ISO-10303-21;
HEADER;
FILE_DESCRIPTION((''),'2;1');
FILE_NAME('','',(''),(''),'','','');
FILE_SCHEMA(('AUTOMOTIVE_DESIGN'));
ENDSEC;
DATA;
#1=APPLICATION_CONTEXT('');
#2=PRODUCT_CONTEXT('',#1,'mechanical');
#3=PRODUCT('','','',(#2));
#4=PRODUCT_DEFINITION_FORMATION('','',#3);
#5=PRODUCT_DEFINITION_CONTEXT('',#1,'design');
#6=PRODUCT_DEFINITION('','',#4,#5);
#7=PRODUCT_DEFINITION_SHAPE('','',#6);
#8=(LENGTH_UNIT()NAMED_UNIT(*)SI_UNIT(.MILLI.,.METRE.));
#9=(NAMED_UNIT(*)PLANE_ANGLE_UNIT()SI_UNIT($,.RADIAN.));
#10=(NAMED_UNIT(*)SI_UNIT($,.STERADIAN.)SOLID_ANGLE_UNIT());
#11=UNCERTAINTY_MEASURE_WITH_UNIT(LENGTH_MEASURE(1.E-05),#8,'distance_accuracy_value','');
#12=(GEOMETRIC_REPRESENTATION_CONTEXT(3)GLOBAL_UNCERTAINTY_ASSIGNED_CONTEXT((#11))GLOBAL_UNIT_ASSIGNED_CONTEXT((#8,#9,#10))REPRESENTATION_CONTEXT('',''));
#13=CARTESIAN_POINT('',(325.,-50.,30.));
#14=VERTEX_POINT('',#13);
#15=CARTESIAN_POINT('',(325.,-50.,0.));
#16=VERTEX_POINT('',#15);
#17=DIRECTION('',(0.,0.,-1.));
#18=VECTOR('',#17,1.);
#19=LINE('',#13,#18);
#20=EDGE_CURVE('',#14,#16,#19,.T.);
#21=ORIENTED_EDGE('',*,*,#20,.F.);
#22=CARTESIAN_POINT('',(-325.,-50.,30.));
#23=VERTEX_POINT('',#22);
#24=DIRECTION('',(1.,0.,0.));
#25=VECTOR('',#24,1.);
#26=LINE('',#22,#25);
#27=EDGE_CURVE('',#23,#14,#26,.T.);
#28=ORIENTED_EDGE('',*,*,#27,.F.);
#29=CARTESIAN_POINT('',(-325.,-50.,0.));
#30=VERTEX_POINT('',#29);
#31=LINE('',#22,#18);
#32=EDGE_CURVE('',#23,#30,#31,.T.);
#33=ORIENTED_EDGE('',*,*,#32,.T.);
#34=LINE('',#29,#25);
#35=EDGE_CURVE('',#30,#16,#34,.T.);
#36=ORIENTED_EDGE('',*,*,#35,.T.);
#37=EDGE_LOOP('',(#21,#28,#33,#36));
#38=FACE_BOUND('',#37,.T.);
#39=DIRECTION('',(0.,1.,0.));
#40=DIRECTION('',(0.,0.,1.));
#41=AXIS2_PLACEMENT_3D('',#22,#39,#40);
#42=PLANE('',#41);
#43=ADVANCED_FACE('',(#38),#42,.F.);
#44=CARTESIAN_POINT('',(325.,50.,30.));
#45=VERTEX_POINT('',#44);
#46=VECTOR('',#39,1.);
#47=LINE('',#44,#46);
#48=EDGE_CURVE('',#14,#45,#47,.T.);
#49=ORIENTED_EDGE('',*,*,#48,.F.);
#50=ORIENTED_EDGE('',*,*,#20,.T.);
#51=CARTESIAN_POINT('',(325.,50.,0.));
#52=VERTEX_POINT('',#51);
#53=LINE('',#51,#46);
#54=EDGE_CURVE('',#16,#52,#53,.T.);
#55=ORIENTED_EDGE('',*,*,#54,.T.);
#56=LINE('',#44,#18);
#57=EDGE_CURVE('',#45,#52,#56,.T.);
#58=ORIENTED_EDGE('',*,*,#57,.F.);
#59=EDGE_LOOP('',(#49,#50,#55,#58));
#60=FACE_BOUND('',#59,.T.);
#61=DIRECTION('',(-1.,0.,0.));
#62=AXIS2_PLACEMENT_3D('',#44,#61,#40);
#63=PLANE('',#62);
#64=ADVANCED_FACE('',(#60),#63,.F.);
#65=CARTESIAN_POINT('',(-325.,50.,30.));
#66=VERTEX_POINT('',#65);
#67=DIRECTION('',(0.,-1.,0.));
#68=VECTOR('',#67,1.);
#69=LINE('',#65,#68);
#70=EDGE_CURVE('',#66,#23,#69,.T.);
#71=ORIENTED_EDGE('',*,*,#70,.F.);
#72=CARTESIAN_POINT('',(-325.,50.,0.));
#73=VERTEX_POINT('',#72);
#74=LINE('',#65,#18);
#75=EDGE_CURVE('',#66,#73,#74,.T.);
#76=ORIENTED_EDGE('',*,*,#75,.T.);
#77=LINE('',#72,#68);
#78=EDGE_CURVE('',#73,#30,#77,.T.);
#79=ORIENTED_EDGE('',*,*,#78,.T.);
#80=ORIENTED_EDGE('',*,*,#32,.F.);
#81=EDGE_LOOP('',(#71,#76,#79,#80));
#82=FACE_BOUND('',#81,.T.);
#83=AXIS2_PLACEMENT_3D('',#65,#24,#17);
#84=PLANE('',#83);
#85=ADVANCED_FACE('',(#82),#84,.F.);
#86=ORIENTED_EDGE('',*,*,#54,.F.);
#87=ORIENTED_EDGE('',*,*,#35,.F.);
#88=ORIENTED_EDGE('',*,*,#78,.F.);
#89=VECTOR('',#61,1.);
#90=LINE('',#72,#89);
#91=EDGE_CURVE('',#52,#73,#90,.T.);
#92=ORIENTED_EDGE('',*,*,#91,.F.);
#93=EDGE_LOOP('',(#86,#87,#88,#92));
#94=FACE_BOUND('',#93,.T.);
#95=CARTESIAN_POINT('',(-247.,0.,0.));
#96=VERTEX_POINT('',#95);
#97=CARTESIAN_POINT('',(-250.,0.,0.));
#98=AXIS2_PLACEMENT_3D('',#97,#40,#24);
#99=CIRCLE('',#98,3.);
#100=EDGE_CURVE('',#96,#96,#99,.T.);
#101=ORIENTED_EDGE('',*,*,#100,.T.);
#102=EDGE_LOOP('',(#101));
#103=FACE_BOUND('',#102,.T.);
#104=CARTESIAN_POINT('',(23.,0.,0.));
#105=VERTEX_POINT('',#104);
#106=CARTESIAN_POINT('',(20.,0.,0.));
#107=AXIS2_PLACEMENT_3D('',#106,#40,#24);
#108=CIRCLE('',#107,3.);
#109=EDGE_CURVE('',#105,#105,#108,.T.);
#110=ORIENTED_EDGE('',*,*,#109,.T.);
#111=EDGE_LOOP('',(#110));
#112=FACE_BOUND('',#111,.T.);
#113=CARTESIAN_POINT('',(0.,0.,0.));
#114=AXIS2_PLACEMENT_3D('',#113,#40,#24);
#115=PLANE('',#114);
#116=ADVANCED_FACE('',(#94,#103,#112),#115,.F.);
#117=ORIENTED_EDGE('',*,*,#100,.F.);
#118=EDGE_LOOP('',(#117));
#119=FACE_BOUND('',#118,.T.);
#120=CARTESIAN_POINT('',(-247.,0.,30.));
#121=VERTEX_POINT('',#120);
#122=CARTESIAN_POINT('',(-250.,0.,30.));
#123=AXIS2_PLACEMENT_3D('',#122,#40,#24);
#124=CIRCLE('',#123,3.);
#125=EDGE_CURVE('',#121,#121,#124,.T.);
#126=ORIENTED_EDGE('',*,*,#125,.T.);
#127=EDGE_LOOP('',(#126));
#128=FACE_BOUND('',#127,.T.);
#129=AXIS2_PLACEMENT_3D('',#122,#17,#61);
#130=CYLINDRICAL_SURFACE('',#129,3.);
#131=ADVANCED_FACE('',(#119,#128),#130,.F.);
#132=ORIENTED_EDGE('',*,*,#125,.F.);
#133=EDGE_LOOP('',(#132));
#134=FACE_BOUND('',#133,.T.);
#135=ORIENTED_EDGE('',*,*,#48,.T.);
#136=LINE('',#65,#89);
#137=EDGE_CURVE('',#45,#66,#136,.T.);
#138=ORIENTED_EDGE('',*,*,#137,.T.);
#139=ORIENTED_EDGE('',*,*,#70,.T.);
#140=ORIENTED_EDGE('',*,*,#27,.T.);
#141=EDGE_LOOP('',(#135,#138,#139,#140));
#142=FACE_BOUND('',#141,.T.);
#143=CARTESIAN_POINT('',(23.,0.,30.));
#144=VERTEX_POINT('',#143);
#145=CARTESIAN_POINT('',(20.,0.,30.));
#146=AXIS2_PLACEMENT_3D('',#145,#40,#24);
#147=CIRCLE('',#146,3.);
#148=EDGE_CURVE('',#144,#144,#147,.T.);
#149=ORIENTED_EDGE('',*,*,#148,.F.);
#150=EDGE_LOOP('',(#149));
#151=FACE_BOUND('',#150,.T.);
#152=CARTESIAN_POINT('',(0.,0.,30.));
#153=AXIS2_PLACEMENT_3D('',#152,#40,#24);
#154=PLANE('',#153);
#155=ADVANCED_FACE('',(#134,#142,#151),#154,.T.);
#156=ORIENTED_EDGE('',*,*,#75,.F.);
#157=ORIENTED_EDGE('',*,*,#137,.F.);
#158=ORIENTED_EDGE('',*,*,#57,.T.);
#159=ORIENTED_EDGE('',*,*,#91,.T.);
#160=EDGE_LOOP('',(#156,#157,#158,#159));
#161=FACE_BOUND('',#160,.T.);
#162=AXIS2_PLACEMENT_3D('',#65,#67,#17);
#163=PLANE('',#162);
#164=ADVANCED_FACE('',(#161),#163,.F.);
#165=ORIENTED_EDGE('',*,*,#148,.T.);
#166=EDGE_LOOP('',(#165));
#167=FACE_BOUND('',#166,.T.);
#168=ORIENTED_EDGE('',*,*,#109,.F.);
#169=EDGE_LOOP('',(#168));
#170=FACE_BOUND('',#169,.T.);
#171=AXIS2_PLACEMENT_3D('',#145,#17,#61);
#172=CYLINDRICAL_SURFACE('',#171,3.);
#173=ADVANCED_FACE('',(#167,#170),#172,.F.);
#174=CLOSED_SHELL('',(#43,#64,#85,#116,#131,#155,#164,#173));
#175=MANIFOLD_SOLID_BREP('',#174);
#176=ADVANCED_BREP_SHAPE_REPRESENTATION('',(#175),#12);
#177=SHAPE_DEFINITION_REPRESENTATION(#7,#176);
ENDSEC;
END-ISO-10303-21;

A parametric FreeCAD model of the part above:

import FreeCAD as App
import Part
import Sketcher

V = App.Vector
Q = App.Units.Quantity


def add_polygon(sketch, points):
    """Adds a closed chain of lines whose ends are joined by coincident constraints."""
    first, n = sketch.GeometryCount, len(points)
    for a, b in zip(points, points[1:] + points[:1]):
        sketch.addGeometry(Part.LineSegment(App.Vector(*a, 0), App.Vector(*b, 0)), False)
    for i in range(n):
        sketch.addConstraint(Sketcher.Constraint("Coincident", first + i, 2, first + (i + 1) % n, 1))

doc = App.newDocument("Part")
body = doc.addObject("PartDesign::Body", "Body")

sketch1 = body.newObject("Sketcher::SketchObject", "Sketch")
sketch1.AttachmentSupport = (doc.getObject("XY_Plane"), [""])
sketch1.MapMode = "FlatFace"
add_polygon(sketch1, [(-325, 50), (-325, -50), (325, -50), (325, 50)])
sketch1.addConstraint(Sketcher.Constraint("Vertical", 0))
sketch1.addConstraint(Sketcher.Constraint("Horizontal", 1))
sketch1.addConstraint(Sketcher.Constraint("Vertical", 2))
sketch1.addConstraint(Sketcher.Constraint("Horizontal", 3))
sketch1.addConstraint(Sketcher.Constraint("Symmetric", 0, 2, 2, 2, -1, 1))
sketch1.addConstraint(Sketcher.Constraint("DistanceX", 1, 1, 1, 2, Q("650 mm")))
sketch1.addConstraint(Sketcher.Constraint("DistanceY", 0, 2, 0, 1, Q("100 mm")))
pad1 = body.newObject("PartDesign::Pad", "Pad")
pad1.Profile = sketch1
pad1.Length = 30

sketch2 = body.newObject("Sketcher::SketchObject", "Sketch001")
sketch2.AttachmentSupport = (doc.getObject("XY_Plane"), [""])
sketch2.MapMode = "FlatFace"
sketch2.addGeometry(Part.Circle(V(20, 0, 0), V(0, 0, 1), 3), False)
sketch2.addGeometry(Part.Circle(V(-250, 0, 0), V(0, 0, 1), 3), False)
sketch2.addConstraint(Sketcher.Constraint("Equal", 0, 1))
sketch2.addConstraint(Sketcher.Constraint("PointOnObject", 0, 3, -1))
sketch2.addConstraint(Sketcher.Constraint("PointOnObject", 1, 3, -1))
sketch2.addConstraint(Sketcher.Constraint("Diameter", 0, Q("6 mm")))
sketch2.addConstraint(Sketcher.Constraint("DistanceX", -1, 1, 0, 3, Q("20 mm")))
sketch2.addConstraint(Sketcher.Constraint("DistanceX", 1, 3, -1, 1, Q("250 mm")))
pocket1 = body.newObject("PartDesign::Pocket", "Pocket")
pocket1.Profile = sketch2
pocket1.Type = "ThroughAll"
pocket1.Reversed = True

doc.recompute()
